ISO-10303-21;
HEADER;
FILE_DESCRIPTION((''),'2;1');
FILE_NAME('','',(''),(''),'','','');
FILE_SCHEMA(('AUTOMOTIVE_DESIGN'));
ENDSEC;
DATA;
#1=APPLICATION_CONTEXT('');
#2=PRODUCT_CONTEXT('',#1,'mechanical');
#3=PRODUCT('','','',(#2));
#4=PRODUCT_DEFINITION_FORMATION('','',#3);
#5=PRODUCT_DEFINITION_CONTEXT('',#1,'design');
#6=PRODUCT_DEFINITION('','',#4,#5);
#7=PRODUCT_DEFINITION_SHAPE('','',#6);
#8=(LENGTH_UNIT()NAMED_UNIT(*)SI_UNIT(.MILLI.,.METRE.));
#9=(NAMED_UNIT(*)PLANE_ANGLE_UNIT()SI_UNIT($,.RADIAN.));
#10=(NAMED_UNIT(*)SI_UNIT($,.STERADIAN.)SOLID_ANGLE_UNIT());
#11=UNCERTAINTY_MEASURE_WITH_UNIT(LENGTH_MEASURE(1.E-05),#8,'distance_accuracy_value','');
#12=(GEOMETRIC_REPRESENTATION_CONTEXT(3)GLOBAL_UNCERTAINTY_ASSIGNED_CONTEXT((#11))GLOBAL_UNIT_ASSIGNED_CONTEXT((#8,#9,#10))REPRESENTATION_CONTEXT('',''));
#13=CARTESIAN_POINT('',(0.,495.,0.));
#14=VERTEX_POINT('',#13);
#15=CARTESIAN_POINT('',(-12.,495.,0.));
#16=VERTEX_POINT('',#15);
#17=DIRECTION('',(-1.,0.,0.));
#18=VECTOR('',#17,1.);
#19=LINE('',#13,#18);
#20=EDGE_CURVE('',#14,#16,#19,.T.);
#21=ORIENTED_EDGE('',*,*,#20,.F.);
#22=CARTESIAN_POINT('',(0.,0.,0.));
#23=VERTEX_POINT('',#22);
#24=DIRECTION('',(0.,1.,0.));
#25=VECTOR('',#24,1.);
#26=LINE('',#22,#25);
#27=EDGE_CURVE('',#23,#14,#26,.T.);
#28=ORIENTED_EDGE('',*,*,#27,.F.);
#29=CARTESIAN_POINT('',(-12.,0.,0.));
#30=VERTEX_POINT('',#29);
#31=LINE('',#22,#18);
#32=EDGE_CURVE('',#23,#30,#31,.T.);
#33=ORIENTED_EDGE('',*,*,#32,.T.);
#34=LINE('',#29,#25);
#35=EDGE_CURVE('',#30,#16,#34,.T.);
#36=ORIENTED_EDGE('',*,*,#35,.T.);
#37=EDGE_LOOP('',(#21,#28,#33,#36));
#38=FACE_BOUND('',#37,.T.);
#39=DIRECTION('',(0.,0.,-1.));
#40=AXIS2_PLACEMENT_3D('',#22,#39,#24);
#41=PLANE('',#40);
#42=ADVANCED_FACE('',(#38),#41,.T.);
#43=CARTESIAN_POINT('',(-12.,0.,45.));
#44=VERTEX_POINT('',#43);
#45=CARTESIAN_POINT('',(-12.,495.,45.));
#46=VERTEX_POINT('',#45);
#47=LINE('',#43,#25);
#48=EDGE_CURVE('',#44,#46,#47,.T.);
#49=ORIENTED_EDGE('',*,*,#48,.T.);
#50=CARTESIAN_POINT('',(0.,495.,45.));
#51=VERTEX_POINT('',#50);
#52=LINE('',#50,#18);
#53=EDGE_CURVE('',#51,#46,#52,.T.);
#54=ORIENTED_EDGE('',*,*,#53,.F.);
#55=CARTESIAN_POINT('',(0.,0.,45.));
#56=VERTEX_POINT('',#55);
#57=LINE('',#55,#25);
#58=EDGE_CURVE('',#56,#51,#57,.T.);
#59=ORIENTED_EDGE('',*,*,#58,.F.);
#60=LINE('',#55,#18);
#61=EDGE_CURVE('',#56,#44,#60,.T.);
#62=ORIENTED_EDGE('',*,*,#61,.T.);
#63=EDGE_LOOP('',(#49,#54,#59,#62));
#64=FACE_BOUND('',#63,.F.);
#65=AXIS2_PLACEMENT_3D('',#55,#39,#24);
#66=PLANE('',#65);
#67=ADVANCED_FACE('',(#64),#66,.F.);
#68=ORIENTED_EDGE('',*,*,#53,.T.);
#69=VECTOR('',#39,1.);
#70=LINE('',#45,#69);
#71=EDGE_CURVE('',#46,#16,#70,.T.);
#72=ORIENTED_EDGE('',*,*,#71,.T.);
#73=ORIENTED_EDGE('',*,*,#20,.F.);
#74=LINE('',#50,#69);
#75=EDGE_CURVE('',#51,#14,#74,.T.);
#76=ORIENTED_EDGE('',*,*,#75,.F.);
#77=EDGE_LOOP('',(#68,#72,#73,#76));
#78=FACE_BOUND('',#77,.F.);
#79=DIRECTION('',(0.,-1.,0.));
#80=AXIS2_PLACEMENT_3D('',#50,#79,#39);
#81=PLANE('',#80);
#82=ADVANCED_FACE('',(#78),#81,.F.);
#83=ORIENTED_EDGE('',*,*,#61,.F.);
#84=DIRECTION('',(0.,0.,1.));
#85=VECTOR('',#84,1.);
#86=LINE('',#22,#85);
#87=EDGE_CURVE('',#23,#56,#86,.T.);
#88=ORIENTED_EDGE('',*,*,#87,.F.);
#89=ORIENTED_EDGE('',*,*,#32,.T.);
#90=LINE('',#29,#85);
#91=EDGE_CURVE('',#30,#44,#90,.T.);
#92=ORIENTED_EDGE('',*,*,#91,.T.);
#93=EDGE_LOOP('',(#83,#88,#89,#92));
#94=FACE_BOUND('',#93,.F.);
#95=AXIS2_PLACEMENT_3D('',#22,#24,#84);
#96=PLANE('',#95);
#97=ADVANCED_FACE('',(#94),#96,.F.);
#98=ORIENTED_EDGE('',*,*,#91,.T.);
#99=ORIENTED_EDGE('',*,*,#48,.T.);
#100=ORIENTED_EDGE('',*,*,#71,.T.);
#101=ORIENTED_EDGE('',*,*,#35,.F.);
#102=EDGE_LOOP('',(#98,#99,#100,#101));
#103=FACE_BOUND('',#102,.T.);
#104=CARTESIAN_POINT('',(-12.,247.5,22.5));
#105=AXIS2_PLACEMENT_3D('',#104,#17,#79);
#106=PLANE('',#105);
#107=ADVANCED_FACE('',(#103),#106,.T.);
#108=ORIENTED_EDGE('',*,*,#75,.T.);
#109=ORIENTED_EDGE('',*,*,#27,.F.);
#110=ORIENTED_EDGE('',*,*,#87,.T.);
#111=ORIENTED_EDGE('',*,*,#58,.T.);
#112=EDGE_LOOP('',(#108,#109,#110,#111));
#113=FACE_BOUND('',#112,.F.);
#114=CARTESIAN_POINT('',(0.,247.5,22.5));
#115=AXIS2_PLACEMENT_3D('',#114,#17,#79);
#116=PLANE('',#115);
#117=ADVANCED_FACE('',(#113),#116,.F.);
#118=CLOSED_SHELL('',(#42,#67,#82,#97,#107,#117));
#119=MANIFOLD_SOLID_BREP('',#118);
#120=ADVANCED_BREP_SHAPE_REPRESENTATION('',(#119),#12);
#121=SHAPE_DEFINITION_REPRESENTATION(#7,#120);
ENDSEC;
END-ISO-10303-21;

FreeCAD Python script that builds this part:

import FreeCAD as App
import Part
import Sketcher

V = App.Vector

doc = App.newDocument("Part")
params = doc.addObject("Spreadsheet::Sheet", "Params")
for row, (alias, value) in enumerate([
    ("sketch1_width", "495 mm"),
    ("sketch1_height", "45 mm"),
    ("pad1_length", "12 mm"),
], start=1):
    params.set(f"A{row}", alias)
    params.set(f"B{row}", "=" + value)
    params.setAlias(f"B{row}", alias)

body = doc.addObject("PartDesign::Body", "Body")

# Sketch on YZ plane
sketch1 = body.newObject("Sketcher::SketchObject", "Sketch")
sketch1.AttachmentSupport = (doc.getObject("YZ_Plane"), [""])
sketch1.MapMode = "FlatFace"
sketch1.addGeometry([
    Part.LineSegment(V(0, 45, 0), V(0, 0, 0)),
    Part.LineSegment(V(0, 0, 0), V(495, 0, 0)),
    Part.LineSegment(V(495, 0, 0), V(495, 45, 0)),
    Part.LineSegment(V(495, 45, 0), V(0, 45, 0)),
], False)
sketch1.addConstraint([
    Sketcher.Constraint("Coincident", 0, 2, 1, 1),
    Sketcher.Constraint("Coincident", 1, 2, 2, 1),
    Sketcher.Constraint("Coincident", 2, 2, 3, 1),
    Sketcher.Constraint("Coincident", 3, 2, 0, 1),
    Sketcher.Constraint("Vertical", 0),
    Sketcher.Constraint("Horizontal", 1),
    Sketcher.Constraint("Vertical", 2),
    Sketcher.Constraint("Horizontal", 3),
    Sketcher.Constraint("Coincident", 0, 2, -1, 1),
    Sketcher.Constraint("DistanceX", 1, 1, 1, 2, 495.0),
    Sketcher.Constraint("DistanceY", 0, 2, 0, 1, 45.0),
])
sketch1.setExpression("Constraints[9]", "Params.sketch1_width")
sketch1.setExpression("Constraints[10]", "Params.sketch1_height")
pad1 = body.newObject("PartDesign::Pad", "Pad")
pad1.Profile = sketch1
pad1.setExpression("Length", "Params.pad1_length")
pad1.Reversed = True

doc.recompute()
